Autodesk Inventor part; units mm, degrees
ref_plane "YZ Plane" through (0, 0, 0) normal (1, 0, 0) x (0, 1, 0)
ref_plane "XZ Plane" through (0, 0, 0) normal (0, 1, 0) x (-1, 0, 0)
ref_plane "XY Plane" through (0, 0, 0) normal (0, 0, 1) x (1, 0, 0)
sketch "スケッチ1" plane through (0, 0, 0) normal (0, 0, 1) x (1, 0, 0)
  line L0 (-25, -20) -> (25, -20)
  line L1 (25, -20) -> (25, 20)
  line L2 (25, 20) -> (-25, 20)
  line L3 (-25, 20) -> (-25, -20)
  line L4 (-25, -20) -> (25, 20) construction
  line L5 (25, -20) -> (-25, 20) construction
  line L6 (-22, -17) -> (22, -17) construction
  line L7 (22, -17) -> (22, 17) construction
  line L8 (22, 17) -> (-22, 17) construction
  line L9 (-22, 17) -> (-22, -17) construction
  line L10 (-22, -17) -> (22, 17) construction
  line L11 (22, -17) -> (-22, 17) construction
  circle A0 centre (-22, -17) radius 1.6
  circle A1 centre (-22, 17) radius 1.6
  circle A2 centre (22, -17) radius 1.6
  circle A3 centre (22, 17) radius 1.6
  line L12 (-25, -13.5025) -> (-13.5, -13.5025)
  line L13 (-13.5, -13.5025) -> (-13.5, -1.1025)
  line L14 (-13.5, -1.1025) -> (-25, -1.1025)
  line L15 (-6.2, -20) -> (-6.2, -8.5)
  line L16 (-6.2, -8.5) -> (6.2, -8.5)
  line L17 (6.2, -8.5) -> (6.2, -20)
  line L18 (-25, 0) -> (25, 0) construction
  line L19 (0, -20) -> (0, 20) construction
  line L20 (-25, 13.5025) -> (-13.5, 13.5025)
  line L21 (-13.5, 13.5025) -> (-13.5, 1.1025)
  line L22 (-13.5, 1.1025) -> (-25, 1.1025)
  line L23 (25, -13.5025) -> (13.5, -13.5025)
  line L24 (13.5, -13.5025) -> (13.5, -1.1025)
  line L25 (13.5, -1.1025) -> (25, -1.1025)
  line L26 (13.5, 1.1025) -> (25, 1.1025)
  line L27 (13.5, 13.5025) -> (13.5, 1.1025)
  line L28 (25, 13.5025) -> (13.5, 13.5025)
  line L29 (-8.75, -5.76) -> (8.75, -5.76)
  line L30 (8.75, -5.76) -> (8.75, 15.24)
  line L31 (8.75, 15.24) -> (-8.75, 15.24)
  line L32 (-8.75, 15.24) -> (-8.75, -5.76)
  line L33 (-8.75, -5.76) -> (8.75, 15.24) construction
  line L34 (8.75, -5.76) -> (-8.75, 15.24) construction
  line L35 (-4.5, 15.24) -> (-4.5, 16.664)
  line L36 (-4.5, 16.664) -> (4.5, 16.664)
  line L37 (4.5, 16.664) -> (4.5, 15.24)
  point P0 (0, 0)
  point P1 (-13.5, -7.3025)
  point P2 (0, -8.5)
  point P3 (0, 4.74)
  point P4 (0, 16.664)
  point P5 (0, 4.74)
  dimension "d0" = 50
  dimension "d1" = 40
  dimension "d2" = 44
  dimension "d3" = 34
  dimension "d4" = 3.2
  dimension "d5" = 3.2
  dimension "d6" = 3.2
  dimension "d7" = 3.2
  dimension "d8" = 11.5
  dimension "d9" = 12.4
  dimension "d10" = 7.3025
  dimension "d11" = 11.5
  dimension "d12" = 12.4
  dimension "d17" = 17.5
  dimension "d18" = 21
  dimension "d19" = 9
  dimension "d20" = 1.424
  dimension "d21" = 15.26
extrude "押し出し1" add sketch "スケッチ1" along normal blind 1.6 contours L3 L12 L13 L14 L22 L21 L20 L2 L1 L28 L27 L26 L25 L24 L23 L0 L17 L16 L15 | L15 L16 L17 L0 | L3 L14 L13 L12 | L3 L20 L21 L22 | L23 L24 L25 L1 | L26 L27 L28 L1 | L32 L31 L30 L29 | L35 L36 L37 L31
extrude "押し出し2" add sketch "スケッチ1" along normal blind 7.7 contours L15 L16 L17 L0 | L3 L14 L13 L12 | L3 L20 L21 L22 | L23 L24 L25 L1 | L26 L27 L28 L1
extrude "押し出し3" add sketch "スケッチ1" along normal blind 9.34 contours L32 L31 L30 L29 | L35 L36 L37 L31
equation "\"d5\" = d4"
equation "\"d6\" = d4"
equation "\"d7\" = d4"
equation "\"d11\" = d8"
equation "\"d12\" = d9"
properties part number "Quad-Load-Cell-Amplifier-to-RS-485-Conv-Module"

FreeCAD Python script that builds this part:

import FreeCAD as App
import Part
import Sketcher
from FreeCAD import Vector
Q = App.Units.Quantity


def add_polygon(sketch, points):
    """Adds a closed chain of lines whose ends are joined by coincident constraints."""
    first, n = sketch.GeometryCount, len(points)
    for a, b in zip(points, points[1:] + points[:1]):
        sketch.addGeometry(Part.LineSegment(App.Vector(*a, 0), App.Vector(*b, 0)), False)
    for i in range(n):
        sketch.addConstraint(Sketcher.Constraint("Coincident", first + i, 2, first + (i + 1) % n, 1))

doc = App.newDocument("Part")
body = doc.addObject("PartDesign::Body", "Body")

# Sketch on XY plane
sketch1 = body.newObject("Sketcher::SketchObject", "Sketch")
sketch1.AttachmentSupport = (doc.getObject("XY_Plane"), [""])
sketch1.MapMode = "FlatFace"
add_polygon(sketch1, [(-25, -20), (25, -20), (25, 20), (-25, 20)])  # lines 0-3
sketch1.addGeometry(Part.Circle(Vector(-22, -17, 0), Vector(0, 0, 1), 1.6), False)  # 4
sketch1.addGeometry(Part.Circle(Vector(22, -17, 0), Vector(0, 0, 1), 1.6), False)  # 5
sketch1.addGeometry(Part.Circle(Vector(-22, 17, 0), Vector(0, 0, 1), 1.6), False)  # 6
sketch1.addGeometry(Part.Circle(Vector(22, 17, 0), Vector(0, 0, 1), 1.6), False)  # 7
sketch1.addConstraint(Sketcher.Constraint("Horizontal", 0))
sketch1.addConstraint(Sketcher.Constraint("Vertical", 1))
sketch1.addConstraint(Sketcher.Constraint("Horizontal", 2))
sketch1.addConstraint(Sketcher.Constraint("Vertical", 3))
sketch1.addConstraint(Sketcher.Constraint("Equal", 4, 5))
sketch1.addConstraint(Sketcher.Constraint("Equal", 5, 6))
sketch1.addConstraint(Sketcher.Constraint("Equal", 6, 7))
sketch1.addConstraint(Sketcher.Constraint("Symmetric", 5, 3, 6, 3, -1, 1))
sketch1.addConstraint(Sketcher.Constraint("Symmetric", 4, 3, 7, 3, -1, 1))
sketch1.addConstraint(Sketcher.Constraint("Symmetric", 0, 2, 2, 2, -1, 1))
sketch1.addConstraint(Sketcher.Constraint("Symmetric", 4, 3, 5, 3, -2))
sketch1.addConstraint(Sketcher.Constraint("Diameter", 4, Q("3.2 mm")))
sketch1.addConstraint(Sketcher.Constraint("DistanceX", 0, 1, 0, 2, Q("50 mm")))
sketch1.addConstraint(Sketcher.Constraint("DistanceY", 1, 1, 1, 2, Q("40 mm")))
sketch1.addConstraint(Sketcher.Constraint("DistanceX", 4, 3, 5, 3, Q("44 mm")))
sketch1.addConstraint(Sketcher.Constraint("DistanceY", 4, 3, 6, 3, Q("34 mm")))
pad1 = body.newObject("PartDesign::Pad", "Pad")
pad1.Profile = sketch1
pad1.Length = 1.6

# Sketch on XY plane
sketch2 = body.newObject("Sketcher::SketchObject", "Sketch001")
sketch2.AttachmentSupport = (doc.getObject("XY_Plane"), [""])
sketch2.MapMode = "FlatFace"
add_polygon(sketch2, [(-6, -8), (-6, -20), (6, -20), (6, -8)])  # lines 0-3
add_polygon(sketch2, [(-25, -1), (-25, -14), (-14, -14), (-14, -1)])  # lines 4-7
add_polygon(sketch2, [(-25, 14), (-25, 1), (-14, 1), (-14, 14)])  # lines 8-11
add_polygon(sketch2, [(14, -14), (25, -14), (25, -1), (14, -1)])  # lines 12-15
add_polygon(sketch2, [(14, 1), (25, 1), (25, 14), (14, 14)])  # lines 16-19
sketch2.addConstraint(Sketcher.Constraint("Vertical", 0))
sketch2.addConstraint(Sketcher.Constraint("Horizontal", 1))
sketch2.addConstraint(Sketcher.Constraint("Vertical", 2))
sketch2.addConstraint(Sketcher.Constraint("Horizontal", 3))
sketch2.addConstraint(Sketcher.Constraint("Vertical", 4))
sketch2.addConstraint(Sketcher.Constraint("Horizontal", 5))
sketch2.addConstraint(Sketcher.Constraint("Vertical", 6))
sketch2.addConstraint(Sketcher.Constraint("Horizontal", 7))
sketch2.addConstraint(Sketcher.Constraint("Vertical", 8))
sketch2.addConstraint(Sketcher.Constraint("Horizontal", 9))
sketch2.addConstraint(Sketcher.Constraint("Vertical", 10))
sketch2.addConstraint(Sketcher.Constraint("Horizontal", 11))
sketch2.addConstraint(Sketcher.Constraint("Horizontal", 12))
sketch2.addConstraint(Sketcher.Constraint("Vertical", 13))
sketch2.addConstraint(Sketcher.Constraint("Horizontal", 14))
sketch2.addConstraint(Sketcher.Constraint("Vertical", 15))
sketch2.addConstraint(Sketcher.Constraint("Horizontal", 16))
sketch2.addConstraint(Sketcher.Constraint("Vertical", 17))
sketch2.addConstraint(Sketcher.Constraint("Horizontal", 18))
sketch2.addConstraint(Sketcher.Constraint("Vertical", 19))
sketch2.addConstraint(Sketcher.Constraint("Symmetric", 11, 2, 12, 2, -1, 1))
sketch2.addConstraint(Sketcher.Constraint("Symmetric", 9, 2, 14, 2, -1, 1))
sketch2.addConstraint(Sketcher.Constraint("Symmetric", 7, 2, 16, 2, -1, 1))
sketch2.addConstraint(Sketcher.Constraint("Symmetric", 5, 2, 18, 2, -1, 1))
sketch2.addConstraint(Sketcher.Constraint("Symmetric", 4, 2, 12, 2, -2))
sketch2.addConstraint(Sketcher.Constraint("Symmetric", 6, 2, 14, 2, -2))
sketch2.addConstraint(Sketcher.Constraint("Equal", 18, 0))
sketch2.addConstraint(Sketcher.Constraint("Equal", 3, 4))
sketch2.addConstraint(Sketcher.Constraint("DistanceX", 1, 1, 1, 2, Q("12.4 mm")))
sketch2.addConstraint(Sketcher.Constraint("DistanceX", 5, 1, 5, 2, Q("11.5 mm")))
sketch2.addConstraint(Sketcher.Constraint("DistanceY", 0, 2, -1, 1, Q("20 mm")))
sketch2.addConstraint(Sketcher.Constraint("DistanceX", 4, 2, -1, 1, Q("25 mm")))
sketch2.addConstraint(Sketcher.Constraint("DistanceX", 0, 2, -1, 1, Q("6.2 mm")))
sketch2.addConstraint(Sketcher.Constraint("DistanceY", 7, 2, 8, 2, Q("2.205 mm")))
pad2 = body.newObject("PartDesign::Pad", "Pad001")
pad2.Profile = sketch2
pad2.Length = 7.7

# Sketch on XY plane
sketch3 = body.newObject("Sketcher::SketchObject", "Sketch002")
sketch3.AttachmentSupport = (doc.getObject("XY_Plane"), [""])
sketch3.MapMode = "FlatFace"
add_polygon(sketch3, [(-8.8, 15.2), (-8.8, -5.8), (8.8, -5.8), (8.8, 15.2), (4.5, 15.2), (4.5, 16.7), (-4.5, 16.7), (-4.5, 15.2)])  # lines 0-7
sketch3.addConstraint(Sketcher.Constraint("Vertical", 0))
sketch3.addConstraint(Sketcher.Constraint("Horizontal", 1))
sketch3.addConstraint(Sketcher.Constraint("Vertical", 2))
sketch3.addConstraint(Sketcher.Constraint("Horizontal", 3))
sketch3.addConstraint(Sketcher.Constraint("Vertical", 4))
sketch3.addConstraint(Sketcher.Constraint("Horizontal", 5))
sketch3.addConstraint(Sketcher.Constraint("Vertical", 6))
sketch3.addConstraint(Sketcher.Constraint("Horizontal", 7))
sketch3.addConstraint(Sketcher.Constraint("Symmetric", 3, 2, 6, 2, -2))
sketch3.addConstraint(Sketcher.Constraint("Equal", 3, 7))
sketch3.addConstraint(Sketcher.Constraint("DistanceX", 5, 2, 5, 1, Q("9 mm")))
sketch3.addConstraint(Sketcher.Constraint("DistanceY", 0, 2, 0, 1, Q("21 mm")))
sketch3.addConstraint(Sketcher.Constraint("DistanceX", 1, 1, 1, 2, Q("17.5 mm")))
sketch3.addConstraint(Sketcher.Constraint("DistanceY", 4, 1, 4, 2, Q("1.424 mm")))
sketch3.addConstraint(Sketcher.Constraint("DistanceY", 0, 2, -1, 1, Q("5.76 mm")))
pad3 = body.newObject("PartDesign::Pad", "Pad002")
pad3.Profile = sketch3
pad3.Length = 9.34

doc.recompute()
